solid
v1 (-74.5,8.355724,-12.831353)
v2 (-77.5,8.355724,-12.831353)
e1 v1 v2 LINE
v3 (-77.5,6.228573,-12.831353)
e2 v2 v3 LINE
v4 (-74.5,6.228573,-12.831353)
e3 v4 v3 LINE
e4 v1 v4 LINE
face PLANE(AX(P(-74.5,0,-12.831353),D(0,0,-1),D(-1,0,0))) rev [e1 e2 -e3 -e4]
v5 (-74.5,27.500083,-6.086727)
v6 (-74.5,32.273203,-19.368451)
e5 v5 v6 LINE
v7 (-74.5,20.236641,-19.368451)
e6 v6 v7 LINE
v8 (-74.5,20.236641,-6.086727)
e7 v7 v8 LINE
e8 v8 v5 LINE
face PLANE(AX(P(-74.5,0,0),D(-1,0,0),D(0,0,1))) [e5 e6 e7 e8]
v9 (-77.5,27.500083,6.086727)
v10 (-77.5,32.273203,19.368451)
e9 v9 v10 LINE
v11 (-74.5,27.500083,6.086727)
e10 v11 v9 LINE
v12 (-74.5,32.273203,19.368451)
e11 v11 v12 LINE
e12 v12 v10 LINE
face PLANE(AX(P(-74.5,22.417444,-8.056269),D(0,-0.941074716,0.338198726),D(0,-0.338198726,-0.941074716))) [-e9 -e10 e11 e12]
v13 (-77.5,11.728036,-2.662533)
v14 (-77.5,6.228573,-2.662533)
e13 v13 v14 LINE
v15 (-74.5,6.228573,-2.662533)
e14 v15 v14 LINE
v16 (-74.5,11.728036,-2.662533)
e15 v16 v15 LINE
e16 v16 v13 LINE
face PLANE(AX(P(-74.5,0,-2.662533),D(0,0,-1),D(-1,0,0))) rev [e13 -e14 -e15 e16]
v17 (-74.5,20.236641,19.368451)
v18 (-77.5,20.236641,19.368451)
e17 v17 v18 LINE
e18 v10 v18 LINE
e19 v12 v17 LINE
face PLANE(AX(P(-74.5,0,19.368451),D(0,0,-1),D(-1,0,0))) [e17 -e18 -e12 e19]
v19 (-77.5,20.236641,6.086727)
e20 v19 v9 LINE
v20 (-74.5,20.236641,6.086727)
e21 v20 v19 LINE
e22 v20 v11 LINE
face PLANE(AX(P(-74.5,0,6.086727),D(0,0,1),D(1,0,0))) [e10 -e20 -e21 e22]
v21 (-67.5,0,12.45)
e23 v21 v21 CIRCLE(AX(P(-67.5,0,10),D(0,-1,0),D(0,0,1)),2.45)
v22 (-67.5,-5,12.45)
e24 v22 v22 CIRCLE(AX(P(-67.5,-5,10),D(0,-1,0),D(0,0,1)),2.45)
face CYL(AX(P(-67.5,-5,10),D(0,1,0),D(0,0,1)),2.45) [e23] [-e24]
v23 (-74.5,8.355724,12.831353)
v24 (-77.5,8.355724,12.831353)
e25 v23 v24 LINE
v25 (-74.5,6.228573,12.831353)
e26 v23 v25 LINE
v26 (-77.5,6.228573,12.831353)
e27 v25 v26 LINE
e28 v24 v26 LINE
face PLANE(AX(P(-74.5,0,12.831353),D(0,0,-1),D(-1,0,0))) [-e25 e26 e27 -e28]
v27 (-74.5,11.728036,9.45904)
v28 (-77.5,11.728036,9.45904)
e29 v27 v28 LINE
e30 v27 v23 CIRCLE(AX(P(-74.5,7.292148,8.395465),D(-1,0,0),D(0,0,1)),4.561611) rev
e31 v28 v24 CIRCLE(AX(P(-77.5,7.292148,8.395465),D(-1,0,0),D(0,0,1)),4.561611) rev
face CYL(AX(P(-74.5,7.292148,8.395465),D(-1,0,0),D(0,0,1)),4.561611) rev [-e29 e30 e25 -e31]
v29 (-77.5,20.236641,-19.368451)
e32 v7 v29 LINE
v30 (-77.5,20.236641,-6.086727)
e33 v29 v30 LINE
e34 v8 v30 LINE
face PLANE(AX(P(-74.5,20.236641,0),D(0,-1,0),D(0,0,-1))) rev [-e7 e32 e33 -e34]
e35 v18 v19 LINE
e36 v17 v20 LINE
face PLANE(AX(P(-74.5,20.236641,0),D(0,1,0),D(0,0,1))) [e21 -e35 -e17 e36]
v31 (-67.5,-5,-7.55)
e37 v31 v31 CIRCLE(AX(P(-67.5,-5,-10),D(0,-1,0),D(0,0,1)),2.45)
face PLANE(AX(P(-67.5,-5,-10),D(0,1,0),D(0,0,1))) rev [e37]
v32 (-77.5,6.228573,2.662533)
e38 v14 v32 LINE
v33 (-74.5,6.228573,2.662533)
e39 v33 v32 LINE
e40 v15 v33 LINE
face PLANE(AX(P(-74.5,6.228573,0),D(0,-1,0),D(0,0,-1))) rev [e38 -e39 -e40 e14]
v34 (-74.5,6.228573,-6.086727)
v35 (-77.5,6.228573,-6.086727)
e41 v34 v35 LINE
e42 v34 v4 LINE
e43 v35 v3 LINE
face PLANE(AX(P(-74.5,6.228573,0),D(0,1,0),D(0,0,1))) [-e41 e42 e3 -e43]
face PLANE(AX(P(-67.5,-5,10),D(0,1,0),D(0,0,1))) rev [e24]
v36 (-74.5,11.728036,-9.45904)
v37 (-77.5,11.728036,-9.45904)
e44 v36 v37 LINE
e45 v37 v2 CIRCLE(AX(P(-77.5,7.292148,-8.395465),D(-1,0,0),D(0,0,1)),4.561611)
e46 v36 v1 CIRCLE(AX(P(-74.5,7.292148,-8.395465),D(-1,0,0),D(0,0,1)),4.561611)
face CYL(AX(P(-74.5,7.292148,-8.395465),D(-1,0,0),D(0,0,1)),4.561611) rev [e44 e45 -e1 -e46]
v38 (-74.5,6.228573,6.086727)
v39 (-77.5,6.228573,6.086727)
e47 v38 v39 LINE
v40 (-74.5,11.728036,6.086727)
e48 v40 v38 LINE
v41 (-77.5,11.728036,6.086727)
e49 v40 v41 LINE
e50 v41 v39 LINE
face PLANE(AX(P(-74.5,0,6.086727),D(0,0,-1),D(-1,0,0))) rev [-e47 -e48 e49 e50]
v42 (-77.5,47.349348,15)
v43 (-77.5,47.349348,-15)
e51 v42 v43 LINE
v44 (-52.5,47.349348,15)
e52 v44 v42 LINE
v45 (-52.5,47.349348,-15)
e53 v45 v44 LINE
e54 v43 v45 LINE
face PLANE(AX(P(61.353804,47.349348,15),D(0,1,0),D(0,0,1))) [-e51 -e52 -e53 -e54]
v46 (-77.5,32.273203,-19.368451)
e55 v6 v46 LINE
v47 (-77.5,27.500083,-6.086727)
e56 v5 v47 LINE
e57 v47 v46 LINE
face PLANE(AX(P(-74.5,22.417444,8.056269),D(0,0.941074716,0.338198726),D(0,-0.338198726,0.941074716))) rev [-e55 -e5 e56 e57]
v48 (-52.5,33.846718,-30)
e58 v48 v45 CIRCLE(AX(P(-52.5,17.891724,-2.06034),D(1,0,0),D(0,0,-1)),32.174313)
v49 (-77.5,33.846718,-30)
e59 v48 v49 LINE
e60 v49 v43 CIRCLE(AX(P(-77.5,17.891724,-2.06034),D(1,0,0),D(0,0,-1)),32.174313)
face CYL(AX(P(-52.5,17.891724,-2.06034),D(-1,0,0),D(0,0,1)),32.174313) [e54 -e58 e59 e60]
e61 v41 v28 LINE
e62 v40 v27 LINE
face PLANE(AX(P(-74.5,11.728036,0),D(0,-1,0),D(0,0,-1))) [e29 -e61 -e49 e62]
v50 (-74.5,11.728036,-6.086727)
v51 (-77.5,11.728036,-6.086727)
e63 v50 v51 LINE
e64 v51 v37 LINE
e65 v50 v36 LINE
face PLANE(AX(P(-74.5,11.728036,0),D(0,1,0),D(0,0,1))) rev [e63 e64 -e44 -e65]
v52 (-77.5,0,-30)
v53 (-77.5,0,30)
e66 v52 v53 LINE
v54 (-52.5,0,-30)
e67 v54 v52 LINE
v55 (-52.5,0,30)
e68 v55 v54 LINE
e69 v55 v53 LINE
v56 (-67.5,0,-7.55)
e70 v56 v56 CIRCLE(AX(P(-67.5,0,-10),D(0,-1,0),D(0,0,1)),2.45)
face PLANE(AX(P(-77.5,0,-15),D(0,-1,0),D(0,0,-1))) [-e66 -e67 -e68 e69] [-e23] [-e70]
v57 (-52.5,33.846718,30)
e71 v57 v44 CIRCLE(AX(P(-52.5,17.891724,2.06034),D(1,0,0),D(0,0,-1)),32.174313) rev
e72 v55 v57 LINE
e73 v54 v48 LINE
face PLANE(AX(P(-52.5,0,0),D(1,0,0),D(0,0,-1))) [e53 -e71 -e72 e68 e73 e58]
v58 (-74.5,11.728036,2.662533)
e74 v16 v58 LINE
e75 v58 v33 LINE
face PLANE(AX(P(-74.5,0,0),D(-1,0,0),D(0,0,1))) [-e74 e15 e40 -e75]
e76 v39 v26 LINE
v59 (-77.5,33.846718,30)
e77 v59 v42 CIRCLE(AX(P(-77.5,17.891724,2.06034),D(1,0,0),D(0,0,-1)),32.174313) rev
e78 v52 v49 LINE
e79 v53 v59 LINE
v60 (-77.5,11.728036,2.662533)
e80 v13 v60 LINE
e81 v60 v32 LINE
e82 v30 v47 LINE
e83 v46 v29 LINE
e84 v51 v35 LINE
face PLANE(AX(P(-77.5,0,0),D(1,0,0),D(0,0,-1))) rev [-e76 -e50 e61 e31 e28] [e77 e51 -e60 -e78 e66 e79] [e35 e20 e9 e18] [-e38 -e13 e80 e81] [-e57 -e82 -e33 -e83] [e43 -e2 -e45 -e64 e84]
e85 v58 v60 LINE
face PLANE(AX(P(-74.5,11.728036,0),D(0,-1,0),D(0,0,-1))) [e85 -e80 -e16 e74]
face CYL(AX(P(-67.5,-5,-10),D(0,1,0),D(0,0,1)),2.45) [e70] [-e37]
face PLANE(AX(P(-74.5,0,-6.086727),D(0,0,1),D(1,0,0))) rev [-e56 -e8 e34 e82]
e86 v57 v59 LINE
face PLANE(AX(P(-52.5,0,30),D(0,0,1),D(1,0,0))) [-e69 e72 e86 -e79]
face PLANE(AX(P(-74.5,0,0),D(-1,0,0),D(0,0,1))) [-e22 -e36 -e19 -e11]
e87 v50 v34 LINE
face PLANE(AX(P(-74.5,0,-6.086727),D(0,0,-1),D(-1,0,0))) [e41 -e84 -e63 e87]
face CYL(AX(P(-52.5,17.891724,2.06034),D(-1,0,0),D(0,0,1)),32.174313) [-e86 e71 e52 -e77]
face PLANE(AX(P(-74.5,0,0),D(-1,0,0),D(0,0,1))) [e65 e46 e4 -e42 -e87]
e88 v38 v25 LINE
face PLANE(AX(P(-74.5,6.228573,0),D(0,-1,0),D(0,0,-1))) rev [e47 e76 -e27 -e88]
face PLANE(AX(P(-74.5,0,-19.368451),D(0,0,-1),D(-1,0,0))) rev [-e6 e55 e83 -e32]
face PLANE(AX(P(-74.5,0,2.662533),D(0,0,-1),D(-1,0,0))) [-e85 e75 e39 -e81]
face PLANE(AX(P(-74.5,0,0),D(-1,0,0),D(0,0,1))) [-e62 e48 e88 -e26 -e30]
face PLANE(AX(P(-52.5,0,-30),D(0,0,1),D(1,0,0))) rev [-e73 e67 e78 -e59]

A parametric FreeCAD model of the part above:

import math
import FreeCAD as App
import Part
import Sketcher
from FreeCAD import Vector

doc = App.newDocument("Part")
params = doc.addObject("Spreadsheet::Sheet", "Params")
for row, (alias, value) in enumerate([
    ("sketch1_radius", "77.5 mm"),
    ("pad1_length", "15 mm"),
    ("pad1_length2", "15 mm"),
    ("sketch2_diameter", "4.9 mm"),
    ("pad2_length", "5 mm"),
    ("sketch3_radius", "57.5 mm"),
    ("sketch4_height", "60 mm"),
    ("pad3_length", "25 mm"),
    ("pocket2_length", "3 mm"),
    ("sketch7_height", "30 mm"),
], start=1):
    params.set(f"A{row}", alias)
    params.set(f"B{row}", "=" + value)
    params.setAlias(f"B{row}", alias)

body = doc.addObject("PartDesign::Body", "Body")

# Sketch on XY plane
sketch1 = doc.addObject("Sketcher::SketchObject", "Sketch")
body.addObject(sketch1)
sketch1.AttachmentSupport = (doc.XY_Plane, [""])
sketch1.MapMode = "FlatFace"
sketch1.addGeometry([
    Part.LineSegment(Vector(-78, 0, 0), Vector(78, 0, 0)),
    Part.ArcOfCircle(Part.Circle(Vector(0, 0, 0), Vector(0, 0, 1), 78), math.radians(0), math.radians(180)),
], False)
sketch1.addConstraint([
    Sketcher.Constraint("Coincident", 0, 1, 1, 2),
    Sketcher.Constraint("Coincident", 1, 1, 0, 2),
    Sketcher.Constraint("Horizontal", 0),
    Sketcher.Constraint("Coincident", 1, 3, -1, 1),
    Sketcher.Constraint("PointOnObject", 0, 1, -1),
    Sketcher.Constraint("Radius", 1, 77.5),
])
sketch1.setExpression("Constraints[5]", "Params.sketch1_radius")
pad1 = doc.addObject("PartDesign::Pad", "Pad")
body.addObject(pad1)
pad1.Profile = sketch1
pad1.Type = "TwoLengths"
pad1.setExpression("Length", "Params.pad1_length")
pad1.setExpression("Length2", "Params.pad1_length2")

# Sketch on XZ plane
sketch2 = doc.addObject("Sketcher::SketchObject", "Sketch001")
body.addObject(sketch2)
sketch2.AttachmentSupport = (doc.XZ_Plane, [""])
sketch2.MapMode = "FlatFace"
sketch2.addGeometry([
    Part.Circle(Vector(67.5, 10, 0), Vector(0, 0, 1), 2.5),
    Part.Circle(Vector(67.5, -10, 0), Vector(0, 0, 1), 2.5),
    Part.Circle(Vector(-67.5, -10, 0), Vector(0, 0, 1), 2.5),
    Part.Circle(Vector(-67.5, 10, 0), Vector(0, 0, 1), 2.5),
], False)
sketch2.addConstraint([
    Sketcher.Constraint("Equal", 0, 1),
    Sketcher.Constraint("Equal", 1, 2),
    Sketcher.Constraint("Equal", 2, 3),
    Sketcher.Constraint("Symmetric", 0, 3, 2, 3, -1, 1),
    Sketcher.Constraint("Symmetric", 1, 3, 3, 3, -1, 1),
    Sketcher.Constraint("Symmetric", 1, 3, 2, 3, -2),
    Sketcher.Constraint("Diameter", 0, 4.9),
    Sketcher.Constraint("DistanceY", -1, 1, 0, 3, 10.0),
    Sketcher.Constraint("DistanceX", 2, 3, 1, 3, 135.0),
])
sketch2.setExpression("Constraints[6]", "Params.sketch2_diameter")
pad2 = doc.addObject("PartDesign::Pad", "Pad001")
body.addObject(pad2)
pad2.Profile = sketch2
pad2.setExpression("Length", "Params.pad2_length")

# Sketch on XY plane
sketch3 = doc.addObject("Sketcher::SketchObject", "Sketch002")
body.addObject(sketch3)
sketch3.AttachmentSupport = (doc.XY_Plane, [""])
sketch3.MapMode = "FlatFace"
sketch3.AttachmentOffset = App.Placement(Vector(0, 0, 15), App.Rotation())
sketch3.addGeometry([
    Part.LineSegment(Vector(54, 20, 0), Vector(-54, 20, 0)),
    Part.ArcOfCircle(Part.Circle(Vector(0, 0, 0), Vector(0, 0, 1), 58), math.radians(160), math.radians(380)),
], False)
sketch3.addConstraint([
    Sketcher.Constraint("Coincident", 0, 1, 1, 2),
    Sketcher.Constraint("Coincident", 1, 1, 0, 2),
    Sketcher.Constraint("Horizontal", 0),
    Sketcher.Constraint("Coincident", 1, 3, -1, 1),
    Sketcher.Constraint("Radius", 1, 57.5),
    Sketcher.Constraint("DistanceY", -1, 1, 0, 1, 20.0),
])
sketch3.setExpression("Constraints[4]", "Params.sketch3_radius")
pocket1 = doc.addObject("PartDesign::Pocket", "Pocket")
body.addObject(pocket1)
pocket1.Profile = sketch3
pocket1.Type = "ThroughAll"

# Sketch on YZ plane
sketch4 = doc.addObject("Sketcher::SketchObject", "Sketch003")
body.addObject(sketch4)
sketch4.AttachmentSupport = (doc.YZ_Plane, [""])
sketch4.MapMode = "FlatFace"
sketch4.AttachmentOffset = App.Placement(Vector(0, 0, -77.5), App.Rotation())
sketch4.addGeometry([
    Part.LineSegment(Vector(0, -30, 0), Vector(34, -30, 0)),  # 0
    Part.ArcOfCircle(Part.Circle(Vector(18, -2, 0), Vector(0, 0, 1), 32), math.radians(-60), math.radians(4)),  # 1
    Part.ArcOfCircle(Part.Circle(Vector(18, 2, 0), Vector(0, 0, 1), 32), math.radians(-4), math.radians(60)),  # 2
    Part.LineSegment(Vector(34, 30, 0), Vector(0, 30, 0)),  # 3
    Part.LineSegment(Vector(0, 30, 0), Vector(0, -30, 0)),  # 4
], False)
sketch4.addConstraint([
    Sketcher.Constraint("Coincident", 0, 2, 1, 1),
    Sketcher.Constraint("Coincident", 1, 2, 2, 1),
    Sketcher.Constraint("Coincident", 2, 2, 3, 1),
    Sketcher.Constraint("Coincident", 3, 2, 4, 1),
    Sketcher.Constraint("Coincident", 4, 2, 0, 1),
    Sketcher.Constraint("Horizontal", 0),
    Sketcher.Constraint("Horizontal", 3),
    Sketcher.Constraint("Vertical", 4),
    Sketcher.Constraint("Equal", 1, 2),
    Sketcher.Constraint("Symmetric", 3, 2, 4, 2, -1, 1),
    Sketcher.Constraint("Symmetric", 1, 3, 2, 3, -1),
    Sketcher.Constraint("DistanceY", 4, 2, 4, 1, 60.0),
    Sketcher.Constraint("DistanceX", -1, 1, 1, 2, 50.0),
    Sketcher.Constraint("Radius", 1, 32.174313),
    Sketcher.Constraint("DistanceX", 0, 1, 0, 2, 33.846718),
])
sketch4.setExpression("Constraints[11]", "Params.sketch4_height")
pad3 = doc.addObject("PartDesign::Pad", "Pad002")
body.addObject(pad3)
pad3.Profile = sketch4
pad3.setExpression("Length", "Params.pad3_length")

# Sketch on YZ plane
sketch5 = doc.addObject("Sketcher::SketchObject", "Sketch004")
body.addObject(sketch5)
sketch5.AttachmentSupport = (doc.YZ_Plane, [""])
sketch5.MapMode = "FlatFace"
sketch5.AttachmentOffset = App.Placement(Vector(0, 0, -77.5), App.Rotation())
sketch5.addGeometry([
    Part.LineSegment(Vector(20.2, -6.1, 0), Vector(27.5, -6.1, 0)),  # 0
    Part.LineSegment(Vector(27.5, -6.1, 0), Vector(32.3, -19.4, 0)),  # 1
    Part.LineSegment(Vector(32.3, -19.4, 0), Vector(20.2, -19.4, 0)),  # 2
    Part.LineSegment(Vector(20.2, -19.4, 0), Vector(20.2, -6.1, 0)),  # 3
    Part.LineSegment(Vector(27.5, 6.1, 0), Vector(20.2, 6.1, 0)),  # 4
    Part.LineSegment(Vector(20.2, 6.1, 0), Vector(20.2, 19.4, 0)),  # 5
    Part.LineSegment(Vector(20.2, 19.4, 0), Vector(32.3, 19.4, 0)),  # 6
    Part.LineSegment(Vector(32.3, 19.4, 0), Vector(27.5, 6.1, 0)),  # 7
    Part.LineSegment(Vector(11.7, 9.5, 0), Vector(11.7, 6.1, 0)),  # 8
    Part.LineSegment(Vector(11.7, 6.1, 0), Vector(6.2, 6.1, 0)),  # 9
    Part.LineSegment(Vector(6.2, 6.1, 0), Vector(6.2, 12.8, 0)),  # 10
    Part.LineSegment(Vector(6.2, 12.8, 0), Vector(8.4, 12.8, 0)),  # 11
    Part.ArcOfCircle(Part.Circle(Vector(7.3, 8.4, 0), Vector(0, 0, 1), 4.6), math.radians(13), math.radians(77)),  # 12
    Part.LineSegment(Vector(6.2, 2.7, 0), Vector(11.7, 2.7, 0)),  # 13
    Part.LineSegment(Vector(11.7, 2.7, 0), Vector(11.7, -2.7, 0)),  # 14
    Part.LineSegment(Vector(11.7, -2.7, 0), Vector(6.2, -2.7, 0)),  # 15
    Part.LineSegment(Vector(6.2, -2.7, 0), Vector(6.2, 2.7, 0)),  # 16
    Part.ArcOfCircle(Part.Circle(Vector(7.3, -8.4, 0), Vector(0, 0, 1), 4.6), math.radians(-77), math.radians(-13)),  # 17
    Part.LineSegment(Vector(8.4, -12.8, 0), Vector(6.2, -12.8, 0)),  # 18
    Part.LineSegment(Vector(6.2, -12.8, 0), Vector(6.2, -6.1, 0)),  # 19
    Part.LineSegment(Vector(6.2, -6.1, 0), Vector(11.7, -6.1, 0)),  # 20
    Part.LineSegment(Vector(11.7, -6.1, 0), Vector(11.7, -9.5, 0)),  # 21
], False)
sketch5.addConstraint([
    Sketcher.Constraint("Coincident", 0, 2, 1, 1),
    Sketcher.Constraint("Coincident", 1, 2, 2, 1),
    Sketcher.Constraint("Coincident", 2, 2, 3, 1),
    Sketcher.Constraint("Coincident", 3, 2, 0, 1),
    Sketcher.Constraint("Coincident", 4, 2, 5, 1),
    Sketcher.Constraint("Coincident", 5, 2, 6, 1),
    Sketcher.Constraint("Coincident", 6, 2, 7, 1),
    Sketcher.Constraint("Coincident", 7, 2, 4, 1),
    Sketcher.Constraint("Coincident", 8, 2, 9, 1),
    Sketcher.Constraint("Coincident", 9, 2, 10, 1),
    Sketcher.Constraint("Coincident", 10, 2, 11, 1),
    Sketcher.Constraint("Coincident", 11, 2, 12, 2),
    Sketcher.Constraint("Coincident", 12, 1, 8, 1),
    Sketcher.Constraint("Coincident", 13, 2, 14, 1),
    Sketcher.Constraint("Coincident", 14, 2, 15, 1),
    Sketcher.Constraint("Coincident", 15, 2, 16, 1),
    Sketcher.Constraint("Coincident", 16, 2, 13, 1),
    Sketcher.Constraint("Coincident", 17, 1, 18, 1),
    Sketcher.Constraint("Coincident", 18, 2, 19, 1),
    Sketcher.Constraint("Coincident", 19, 2, 20, 1),
    Sketcher.Constraint("Coincident", 20, 2, 21, 1),
    Sketcher.Constraint("Coincident", 21, 2, 17, 2),
    Sketcher.Constraint("Horizontal", 0),
    Sketcher.Constraint("Horizontal", 2),
    Sketcher.Constraint("Vertical", 3),
    Sketcher.Constraint("Horizontal", 4),
    Sketcher.Constraint("Vertical", 5),
    Sketcher.Constraint("Horizontal", 6),
    Sketcher.Constraint("Vertical", 8),
    Sketcher.Constraint("Horizontal", 9),
    Sketcher.Constraint("Vertical", 10),
    Sketcher.Constraint("Horizontal", 11),
    Sketcher.Constraint("Horizontal", 13),
    Sketcher.Constraint("Vertical", 14),
    Sketcher.Constraint("Horizontal", 15),
    Sketcher.Constraint("Vertical", 16),
    Sketcher.Constraint("Horizontal", 18),
    Sketcher.Constraint("Vertical", 19),
    Sketcher.Constraint("Horizontal", 20),
    Sketcher.Constraint("Vertical", 21),
    Sketcher.Constraint("Equal", 12, 17),
    Sketcher.Constraint("Symmetric", 12, 3, 17, 3, -1),
    Sketcher.Constraint("Symmetric", 3, 2, 4, 2, -1),
    Sketcher.Constraint("Symmetric", 1, 2, 6, 2, -1),
    Sketcher.Constraint("Symmetric", 10, 2, 18, 2, -1),
    Sketcher.Constraint("Symmetric", 8, 2, 20, 2, -1),
    Sketcher.Constraint("Horizontal", 7, 2, 8, 2),
    Sketcher.Constraint("Vertical", 0, 2, 7, 2),
    Sketcher.Constraint("Vertical", 12, 1, 13, 2),
    Sketcher.Constraint("Vertical", 10, 2, 15, 2),
    Sketcher.Constraint("Radius", 12, 4.561611),
    Sketcher.Constraint("DistanceX", 11, 1, 11, 2, 2.127151),
    Sketcher.Constraint("DistanceY", 10, 2, 5, 2, 6.537098),
    Sketcher.Constraint("DistanceX", 0, 1, 0, 2, 7.263443),
    Sketcher.Constraint("DistanceX", 2, 2, 2, 1, 12.036562),
    Sketcher.Constraint("DistanceX", 9, 2, 9, 1, 5.499464),
    Sketcher.Constraint("DistanceY", 3, 1, 3, 2, 13.281724),
    Sketcher.Constraint("DistanceY", 8, 2, 8, 1, 3.372313),
    Sketcher.Constraint("DistanceY", 14, 2, 14, 1, 5.325066),
    Sketcher.Constraint("DistanceX", -1, 1, 12, 3, 7.292148),
    Sketcher.Constraint("DistanceY", 1, 2, -1, 1, 19.368451),
    Sketcher.Constraint("DistanceX", -1, 1, 2, 2, 20.236641),
    Sketcher.Constraint("DistanceY", 13, 2, 12, 3, 5.732932),
])
pocket2 = doc.addObject("PartDesign::Pocket", "Pocket001")
body.addObject(pocket2)
pocket2.Profile = sketch5
pocket2.setExpression("Length", "Params.pocket2_length")
pocket2.Reversed = True

# Sketch on XY plane
sketch6 = doc.addObject("Sketcher::SketchObject", "Sketch005")
body.addObject(sketch6)
sketch6.AttachmentSupport = (doc.XY_Plane, [""])
sketch6.MapMode = "FlatFace"
sketch6.AttachmentOffset = App.Placement(Vector(0, 0, 15), App.Rotation())
sketch6.addGeometry([
    Part.LineSegment(Vector(-52, 47, 0), Vector(-52, -13, 0)),
    Part.LineSegment(Vector(-52, -13, 0), Vector(83, -13, 0)),
    Part.LineSegment(Vector(83, -13, 0), Vector(83, 47, 0)),
    Part.LineSegment(Vector(83, 47, 0), Vector(-52, 47, 0)),
], False)
sketch6.addConstraint([
    Sketcher.Constraint("Coincident", 0, 2, 1, 1),
    Sketcher.Constraint("Coincident", 1, 2, 2, 1),
    Sketcher.Constraint("Coincident", 2, 2, 3, 1),
    Sketcher.Constraint("Coincident", 3, 2, 0, 1),
    Sketcher.Constraint("Vertical", 0),
    Sketcher.Constraint("Horizontal", 1),
    Sketcher.Constraint("Vertical", 2),
    Sketcher.Constraint("Horizontal", 3),
    Sketcher.Constraint("DistanceX", 0, 2, -1, 1, 52.5),
    Sketcher.Constraint("DistanceX", 1, 1, 1, 2, 135.823799),
    Sketcher.Constraint("DistanceY", 0, 2, 0, 1, 59.856145),
    Sketcher.Constraint("DistanceY", 0, 2, -1, 1, 12.506797),
])
pocket3 = doc.addObject("PartDesign::Pocket", "Pocket002")
body.addObject(pocket3)
pocket3.Profile = sketch6
pocket3.Type = "ThroughAll"

# Sketch on YZ plane
sketch7 = doc.addObject("Sketcher::SketchObject", "Sketch006")
body.addObject(sketch7)
sketch7.AttachmentSupport = (doc.YZ_Plane, [""])
sketch7.MapMode = "FlatFace"
sketch7.AttachmentOffset = App.Placement(Vector(0, 0, -77.5), App.Rotation())
sketch7.addGeometry([
    Part.LineSegment(Vector(78, 15, 0), Vector(47, 15, 0)),
    Part.LineSegment(Vector(47, 15, 0), Vector(47, -15, 0)),
    Part.LineSegment(Vector(47, -15, 0), Vector(78, -15, 0)),
    Part.LineSegment(Vector(78, -15, 0), Vector(78, 15, 0)),
], False)
sketch7.addConstraint([
    Sketcher.Constraint("Coincident", 0, 2, 1, 1),
    Sketcher.Constraint("Coincident", 1, 2, 2, 1),
    Sketcher.Constraint("Coincident", 2, 2, 3, 1),
    Sketcher.Constraint("Coincident", 3, 2, 0, 1),
    Sketcher.Constraint("Horizontal", 0),
    Sketcher.Constraint("Vertical", 1),
    Sketcher.Constraint("Horizontal", 2),
    Sketcher.Constraint("Vertical", 3),
    Sketcher.Constraint("DistanceY", 1, 2, 1, 1, 30.0),
    Sketcher.Constraint("DistanceY", -1, 1, 0, 2, 15.0),
    Sketcher.Constraint("DistanceX", -1, 1, 2, 2, 77.5),
    Sketcher.Constraint("DistanceX", 0, 2, 0, 1, 30.150652),
])
sketch7.setExpression("Constraints[8]", "Params.sketch7_height")
pocket4 = doc.addObject("PartDesign::Pocket", "Pocket003")
body.addObject(pocket4)
pocket4.Profile = sketch7
pocket4.Type = "ThroughAll"
pocket4.Reversed = True

doc.recompute()
